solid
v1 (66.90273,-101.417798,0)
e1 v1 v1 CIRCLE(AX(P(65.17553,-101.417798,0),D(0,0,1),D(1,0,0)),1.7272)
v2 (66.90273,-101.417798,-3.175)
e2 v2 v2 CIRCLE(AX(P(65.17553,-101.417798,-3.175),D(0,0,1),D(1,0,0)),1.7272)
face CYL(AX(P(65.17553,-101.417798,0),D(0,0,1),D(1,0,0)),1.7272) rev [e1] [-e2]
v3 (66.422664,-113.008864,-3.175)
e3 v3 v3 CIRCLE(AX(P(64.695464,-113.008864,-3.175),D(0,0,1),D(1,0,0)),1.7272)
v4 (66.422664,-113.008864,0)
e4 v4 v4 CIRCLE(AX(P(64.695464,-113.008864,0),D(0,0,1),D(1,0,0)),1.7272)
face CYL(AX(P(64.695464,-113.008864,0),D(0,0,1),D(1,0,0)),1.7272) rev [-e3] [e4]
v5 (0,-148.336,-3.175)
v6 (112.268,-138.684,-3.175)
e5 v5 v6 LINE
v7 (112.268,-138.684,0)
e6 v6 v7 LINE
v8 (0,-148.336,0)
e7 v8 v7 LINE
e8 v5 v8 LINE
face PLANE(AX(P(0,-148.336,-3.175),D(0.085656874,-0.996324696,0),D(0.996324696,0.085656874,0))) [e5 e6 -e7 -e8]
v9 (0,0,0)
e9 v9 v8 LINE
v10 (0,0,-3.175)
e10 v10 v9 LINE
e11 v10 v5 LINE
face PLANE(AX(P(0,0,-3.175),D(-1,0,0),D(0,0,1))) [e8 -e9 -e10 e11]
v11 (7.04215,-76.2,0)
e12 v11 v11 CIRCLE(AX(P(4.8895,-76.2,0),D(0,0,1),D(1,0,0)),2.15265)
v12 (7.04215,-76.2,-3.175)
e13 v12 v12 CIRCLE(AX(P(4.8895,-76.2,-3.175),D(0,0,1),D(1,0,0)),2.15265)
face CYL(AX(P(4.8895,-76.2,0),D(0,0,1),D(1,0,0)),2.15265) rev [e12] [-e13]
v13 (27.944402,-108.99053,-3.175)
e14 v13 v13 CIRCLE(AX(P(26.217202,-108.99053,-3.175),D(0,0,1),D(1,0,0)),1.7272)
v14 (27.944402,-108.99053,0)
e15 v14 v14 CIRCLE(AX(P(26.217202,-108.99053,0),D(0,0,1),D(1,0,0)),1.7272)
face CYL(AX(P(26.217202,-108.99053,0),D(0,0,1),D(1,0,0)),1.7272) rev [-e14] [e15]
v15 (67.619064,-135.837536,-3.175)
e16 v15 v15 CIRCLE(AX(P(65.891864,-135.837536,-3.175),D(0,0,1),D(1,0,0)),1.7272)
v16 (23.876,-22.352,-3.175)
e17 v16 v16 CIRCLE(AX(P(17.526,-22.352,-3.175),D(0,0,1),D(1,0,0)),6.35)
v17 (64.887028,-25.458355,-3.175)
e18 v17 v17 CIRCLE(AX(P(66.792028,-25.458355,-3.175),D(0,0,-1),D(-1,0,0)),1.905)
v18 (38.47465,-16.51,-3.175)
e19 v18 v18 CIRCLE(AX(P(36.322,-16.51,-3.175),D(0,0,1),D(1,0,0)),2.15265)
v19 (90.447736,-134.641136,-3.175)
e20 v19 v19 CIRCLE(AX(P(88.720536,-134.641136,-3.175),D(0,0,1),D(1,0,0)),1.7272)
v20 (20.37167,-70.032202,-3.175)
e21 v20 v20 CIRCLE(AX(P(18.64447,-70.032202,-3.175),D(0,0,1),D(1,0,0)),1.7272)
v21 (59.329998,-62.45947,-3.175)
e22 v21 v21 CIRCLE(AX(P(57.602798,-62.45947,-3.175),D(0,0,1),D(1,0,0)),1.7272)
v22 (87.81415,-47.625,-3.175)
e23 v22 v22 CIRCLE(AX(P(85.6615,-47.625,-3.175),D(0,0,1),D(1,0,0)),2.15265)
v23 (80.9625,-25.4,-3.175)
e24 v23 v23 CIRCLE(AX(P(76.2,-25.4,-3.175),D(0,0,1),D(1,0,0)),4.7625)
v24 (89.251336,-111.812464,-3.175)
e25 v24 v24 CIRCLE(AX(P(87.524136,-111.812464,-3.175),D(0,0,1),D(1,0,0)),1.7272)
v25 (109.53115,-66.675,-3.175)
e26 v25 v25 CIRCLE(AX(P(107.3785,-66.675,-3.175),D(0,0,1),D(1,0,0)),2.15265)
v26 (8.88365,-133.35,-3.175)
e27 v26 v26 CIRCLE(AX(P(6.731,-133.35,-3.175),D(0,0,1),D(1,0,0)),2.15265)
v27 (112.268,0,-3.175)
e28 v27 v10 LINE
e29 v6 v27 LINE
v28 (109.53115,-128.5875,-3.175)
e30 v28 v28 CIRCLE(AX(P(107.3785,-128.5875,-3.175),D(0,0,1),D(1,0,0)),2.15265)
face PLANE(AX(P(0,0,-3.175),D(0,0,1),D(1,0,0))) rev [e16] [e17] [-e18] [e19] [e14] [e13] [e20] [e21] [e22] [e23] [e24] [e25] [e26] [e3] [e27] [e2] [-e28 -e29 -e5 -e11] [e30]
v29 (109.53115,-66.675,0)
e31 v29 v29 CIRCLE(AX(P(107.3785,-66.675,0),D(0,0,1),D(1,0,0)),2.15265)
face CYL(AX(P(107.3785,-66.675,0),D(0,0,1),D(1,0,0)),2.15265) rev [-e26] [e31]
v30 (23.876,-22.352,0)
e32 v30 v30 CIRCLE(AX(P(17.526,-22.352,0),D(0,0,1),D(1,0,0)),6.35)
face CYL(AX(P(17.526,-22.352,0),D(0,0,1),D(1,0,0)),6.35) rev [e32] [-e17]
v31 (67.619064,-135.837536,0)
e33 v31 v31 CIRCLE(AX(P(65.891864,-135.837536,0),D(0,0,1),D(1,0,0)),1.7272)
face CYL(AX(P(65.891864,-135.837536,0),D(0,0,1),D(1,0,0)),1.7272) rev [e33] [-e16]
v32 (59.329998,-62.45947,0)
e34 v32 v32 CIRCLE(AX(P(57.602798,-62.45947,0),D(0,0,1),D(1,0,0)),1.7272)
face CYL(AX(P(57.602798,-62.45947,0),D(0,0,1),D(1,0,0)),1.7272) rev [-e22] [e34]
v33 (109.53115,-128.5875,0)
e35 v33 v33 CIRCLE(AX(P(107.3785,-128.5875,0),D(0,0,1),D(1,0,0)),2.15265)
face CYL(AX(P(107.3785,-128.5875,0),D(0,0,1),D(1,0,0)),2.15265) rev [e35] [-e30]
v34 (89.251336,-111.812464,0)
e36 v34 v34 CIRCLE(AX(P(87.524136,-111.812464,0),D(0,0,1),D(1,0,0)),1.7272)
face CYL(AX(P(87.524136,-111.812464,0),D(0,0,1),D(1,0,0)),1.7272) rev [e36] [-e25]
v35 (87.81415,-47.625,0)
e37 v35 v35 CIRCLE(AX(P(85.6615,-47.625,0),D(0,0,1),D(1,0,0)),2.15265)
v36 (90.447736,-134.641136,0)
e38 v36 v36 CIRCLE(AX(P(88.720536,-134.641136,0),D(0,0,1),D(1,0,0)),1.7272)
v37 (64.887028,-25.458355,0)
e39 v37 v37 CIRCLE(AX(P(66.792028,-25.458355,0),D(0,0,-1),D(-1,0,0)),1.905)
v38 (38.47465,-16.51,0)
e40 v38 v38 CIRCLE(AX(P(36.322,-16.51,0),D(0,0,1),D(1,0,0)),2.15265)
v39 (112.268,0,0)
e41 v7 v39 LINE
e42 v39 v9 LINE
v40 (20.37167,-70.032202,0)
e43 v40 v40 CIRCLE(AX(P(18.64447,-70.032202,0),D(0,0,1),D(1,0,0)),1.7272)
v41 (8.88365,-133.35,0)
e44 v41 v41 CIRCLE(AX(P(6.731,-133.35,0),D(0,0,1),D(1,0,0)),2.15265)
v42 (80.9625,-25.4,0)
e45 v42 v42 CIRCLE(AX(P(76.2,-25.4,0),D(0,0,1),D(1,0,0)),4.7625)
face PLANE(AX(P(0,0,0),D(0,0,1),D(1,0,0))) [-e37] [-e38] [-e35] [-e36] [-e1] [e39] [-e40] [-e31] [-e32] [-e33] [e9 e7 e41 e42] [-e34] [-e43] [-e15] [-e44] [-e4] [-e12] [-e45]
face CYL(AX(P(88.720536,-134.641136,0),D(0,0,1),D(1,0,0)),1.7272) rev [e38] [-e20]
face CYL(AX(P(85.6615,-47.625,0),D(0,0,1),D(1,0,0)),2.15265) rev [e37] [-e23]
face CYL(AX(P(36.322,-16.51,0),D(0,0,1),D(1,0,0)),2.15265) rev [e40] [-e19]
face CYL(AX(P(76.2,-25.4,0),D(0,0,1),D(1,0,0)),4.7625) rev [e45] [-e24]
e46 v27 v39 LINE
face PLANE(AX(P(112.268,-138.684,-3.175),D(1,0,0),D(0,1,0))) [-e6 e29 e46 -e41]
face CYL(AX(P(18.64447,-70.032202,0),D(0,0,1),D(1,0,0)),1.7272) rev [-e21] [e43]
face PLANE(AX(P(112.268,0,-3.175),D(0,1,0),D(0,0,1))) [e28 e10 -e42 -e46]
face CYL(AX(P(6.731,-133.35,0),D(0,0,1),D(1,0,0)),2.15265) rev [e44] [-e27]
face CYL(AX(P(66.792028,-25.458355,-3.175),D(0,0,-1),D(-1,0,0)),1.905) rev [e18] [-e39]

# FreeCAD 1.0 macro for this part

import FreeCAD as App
import Part
import Sketcher
from FreeCAD import Vector
Q = App.Units.Quantity


def add_polygon(sketch, points):
    """Adds a closed chain of lines whose ends are joined by coincident constraints."""
    first, n = sketch.GeometryCount, len(points)
    for a, b in zip(points, points[1:] + points[:1]):
        sketch.addGeometry(Part.LineSegment(App.Vector(*a, 0), App.Vector(*b, 0)), False)
    for i in range(n):
        sketch.addConstraint(Sketcher.Constraint("Coincident", first + i, 2, first + (i + 1) % n, 1))

doc = App.newDocument("Part")
body = doc.addObject("PartDesign::Body", "Body")

# Sketch on XY plane
sketch1 = body.newObject("Sketcher::SketchObject", "Sketch")
sketch1.AttachmentSupport = (doc.getObject("XY_Plane"), [""])
sketch1.MapMode = "FlatFace"
add_polygon(sketch1, [(112, 0), (0, 0), (0, -148), (112, -139)])  # lines 0-3
sketch1.addConstraint([
    Sketcher.Constraint("Horizontal", 0),
    Sketcher.Constraint("Vertical", 1),
    Sketcher.Constraint("Vertical", 3),
    Sketcher.Constraint("Coincident", 0, 2, -1, 1),
    Sketcher.Constraint("DistanceX", 0, 2, 0, 1, Q("4.42 in")),
    Sketcher.Constraint("DistanceY", 1, 2, 1, 1, Q("5.84 in")),
    Sketcher.Constraint("DistanceY", 3, 1, 3, 2, Q("5.46 in")),
])
pad1 = body.newObject("PartDesign::Pad", "Pad")
pad1.Profile = sketch1
pad1.Length = Q("0.125 in")
pad1.Reversed = True

# Sketch on XY plane
sketch2 = body.newObject("Sketcher::SketchObject", "Sketch001")
sketch2.AttachmentSupport = (doc.getObject("XY_Plane"), [""])
sketch2.MapMode = "FlatFace"
sketch2.addGeometry([
    Part.Circle(Vector(6.7, -133.3, 0), Vector(0, 0, 1), 2.2),
    Part.Circle(Vector(107.4, -128.6, 0), Vector(0, 0, 1), 2.2),
    Part.Circle(Vector(107.4, -66.7, 0), Vector(0, 0, 1), 2.2),
    Part.Circle(Vector(4.9, -76.2, 0), Vector(0, 0, 1), 2.2),
], False)
sketch2.addConstraint([
    Sketcher.Constraint("Equal", 0, 1),
    Sketcher.Constraint("Equal", 1, 2),
    Sketcher.Constraint("Equal", 2, 3),
    Sketcher.Constraint("Vertical", 1, 3, 2, 3),
    Sketcher.Constraint("DistanceY", 3, 3, -1, 1, Q("3 in")),
    Sketcher.Constraint("Diameter", 0, Q("0.1695 in")),
    Sketcher.Constraint("DistanceY", 0, 3, -1, 1, Q("5.25 in")),
    Sketcher.Constraint("DistanceX", -1, 1, 0, 3, Q("0.265 in")),
    Sketcher.Constraint("DistanceY", 1, 3, -1, 1, Q("5.0625 in")),
    Sketcher.Constraint("DistanceY", 2, 3, -1, 1, Q("2.625 in")),
    Sketcher.Constraint("DistanceX", 3, 3, 2, 3, Q("4.035 in")),
    Sketcher.Constraint("DistanceX", -1, 1, 1, 3, Q("4.2275 in")),
])
doc.recompute()
hole = body.newObject("PartDesign::Hole", "Hole")
hole.Profile = sketch2
hole.ThreadType = "None"
hole.Diameter = Q("0.1695 in")
hole.DepthType = "ThroughAll"

# Sketch on XY plane
sketch3 = body.newObject("Sketcher::SketchObject", "Sketch002")
sketch3.AttachmentSupport = (doc.getObject("XY_Plane"), [""])
sketch3.MapMode = "FlatFace"
sketch3.addGeometry([
    Part.Circle(Vector(18.6, -70, 0), Vector(0, 0, 1), 1.7),  # 0
    Part.Circle(Vector(57.6, -62.5, 0), Vector(0, 0, 1), 1.7),  # 1
    Part.Circle(Vector(65.2, -101.4, 0), Vector(0, 0, 1), 1.7),  # 2
    Part.Circle(Vector(26.2, -109, 0), Vector(0, 0, 1), 1.7),  # 3
    Part.Circle(Vector(65.9, -135.8, 0), Vector(0, 0, 1), 1.7),  # 4
    Part.Circle(Vector(88.7, -134.6, 0), Vector(0, 0, 1), 1.7),  # 5
    Part.Circle(Vector(87.5, -111.8, 0), Vector(0, 0, 1), 1.7),  # 6
    Part.Circle(Vector(64.7, -113, 0), Vector(0, 0, 1), 1.7),  # 7
], False)
sketch3.addConstraint([
    Sketcher.Constraint("Equal", 0, 1),
    Sketcher.Constraint("Equal", 1, 2),
    Sketcher.Constraint("Equal", 2, 3),
    Sketcher.Constraint("Equal", 3, 4),
    Sketcher.Constraint("Equal", 4, 5),
    Sketcher.Constraint("Equal", 5, 6),
    Sketcher.Constraint("Equal", 6, 7),
    Sketcher.Constraint("Diameter", 0, Q("0.136 in")),
    Sketcher.Constraint("DistanceY", 0, 3, -1, 1, 70.032202),
    Sketcher.Constraint("DistanceX", -1, 1, 1, 3, 57.602798),
    Sketcher.Constraint("DistanceY", 2, 3, -1, 1, 101.417798),
    Sketcher.Constraint("DistanceX", -1, 1, 3, 3, 26.217202),
    Sketcher.Constraint("DistanceY", 4, 3, 5, 3, 1.1964),
    Sketcher.Constraint("DistanceX", 6, 3, 5, 3, 1.1964),
    Sketcher.Constraint("DistanceX", 7, 3, 4, 3, 1.1964),
    Sketcher.Constraint("DistanceY", 7, 3, 6, 3, 1.1964),
    Sketcher.Constraint("DistanceX", -1, 1, 0, 3, 18.64447),
    Sketcher.Constraint("DistanceY", 1, 3, -1, 1, 62.45947),
    Sketcher.Constraint("DistanceX", -1, 1, 2, 3, 65.17553),
    Sketcher.Constraint("DistanceY", 3, 3, -1, 1, 108.99053),
    Sketcher.Constraint("DistanceX", 4, 3, 5, 3, 22.828671),
    Sketcher.Constraint("DistanceY", 5, 3, 6, 3, 22.828671),
    Sketcher.Constraint("DistanceX", -1, 1, 4, 3, 65.891864),
    Sketcher.Constraint("DistanceY", 4, 3, -1, 1, 135.837536),
])
doc.recompute()
hole2 = body.newObject("PartDesign::Hole", "Hole001")
hole2.Profile = sketch3
hole2.ThreadType = "None"
hole2.Diameter = Q("0.136 in")
hole2.DepthType = "ThroughAll"

# Sketch on XY plane
sketch4 = body.newObject("Sketcher::SketchObject", "Sketch003")
sketch4.AttachmentSupport = (doc.getObject("XY_Plane"), [""])
sketch4.MapMode = "FlatFace"
sketch4.addGeometry([
    Part.Circle(Vector(36.3, -16.5, 0), Vector(0, 0, 1), 2.2),
    Part.Circle(Vector(85.7, -47.6, 0), Vector(0, 0, 1), 2.2),
], False)
sketch4.addConstraint([
    Sketcher.Constraint("Equal", 0, 1),
    Sketcher.Constraint("Diameter", 0, Q("0.1695 in")),
    Sketcher.Constraint("DistanceX", -1, 1, 0, 3, Q("1.43 in")),
    Sketcher.Constraint("DistanceY", 0, 3, -1, 1, Q("0.65 in")),
    Sketcher.Constraint("DistanceY", 1, 3, -1, 1, Q("1.875 in")),
    Sketcher.Constraint("DistanceX", -1, 1, 1, 3, Q("3.3725 in")),
])
doc.recompute()
hole3 = body.newObject("PartDesign::Hole", "Hole002")
hole3.Profile = sketch4
hole3.ThreadType = "None"
hole3.Diameter = Q("0.1695 in")
hole3.DepthType = "ThroughAll"

# Sketch on XY plane
sketch5 = body.newObject("Sketcher::SketchObject", "Sketch004")
sketch5.AttachmentSupport = (doc.getObject("XY_Plane"), [""])
sketch5.MapMode = "FlatFace"
sketch5.addGeometry(Part.Circle(Vector(76.2, -25.4, 0), Vector(0, 0, 1), 4.8), False)
sketch5.addConstraint([
    Sketcher.Constraint("Diameter", 0, Q("0.375 in")),
    Sketcher.Constraint("DistanceX", -1, 1, 0, 3, Q("3 in")),
    Sketcher.Constraint("DistanceY", 0, 3, -1, 1, Q("1 in")),
])
doc.recompute()
hole4 = body.newObject("PartDesign::Hole", "Hole003")
hole4.Profile = sketch5
hole4.ThreadType = "None"
hole4.Diameter = Q("0.375 in")
hole4.DepthType = "ThroughAll"

# Sketch on XY plane
sketch6 = body.newObject("Sketcher::SketchObject", "Sketch005")
sketch6.AttachmentSupport = (doc.getObject("XY_Plane"), [""])
sketch6.MapMode = "FlatFace"
sketch6.addGeometry(Part.Circle(Vector(18, -22, 0), Vector(0, 0, 1), 6), False)
sketch6.addConstraint([
    Sketcher.Constraint("Diameter", 0, Q("0.5 in")),
    Sketcher.Constraint("DistanceX", -1, 1, 0, 3, Q("0.69 in")),
    Sketcher.Constraint("DistanceY", 0, 3, -1, 1, Q("0.88 in")),
])
doc.recompute()
hole5 = body.newObject("PartDesign::Hole", "Hole004")
hole5.Profile = sketch6
hole5.ThreadType = "None"
hole5.Diameter = Q("0.5 in")
hole5.DepthType = "ThroughAll"

# Sketch on XY plane
sketch7 = body.newObject("Sketcher::SketchObject", "Sketch006")
sketch7.AttachmentSupport = (doc.getObject("XY_Plane"), [""])
sketch7.MapMode = "FlatFace"
sketch7.AttachmentOffset = App.Placement(Vector(0, 0, -0.125 * 25.4), App.Rotation())
sketch7.addGeometry(Part.Circle(Vector(66.8, -25.5, 0), Vector(0, 0, 1), 1.9), False)
sketch7.addConstraint([
    Sketcher.Constraint("Diameter", 0, Q("0.15 in")),
    Sketcher.Constraint("DistanceX", -1, 1, 0, 3, 66.792028),
    Sketcher.Constraint("DistanceY", 0, 3, -1, 1, 25.458355),
])
doc.recompute()
hole6 = body.newObject("PartDesign::Hole", "Hole005")
hole6.Profile = sketch7
hole6.ThreadType = "None"
hole6.Diameter = Q("0.15 in")
hole6.DepthType = "ThroughAll"
hole6.Reversed = True

doc.recompute()
